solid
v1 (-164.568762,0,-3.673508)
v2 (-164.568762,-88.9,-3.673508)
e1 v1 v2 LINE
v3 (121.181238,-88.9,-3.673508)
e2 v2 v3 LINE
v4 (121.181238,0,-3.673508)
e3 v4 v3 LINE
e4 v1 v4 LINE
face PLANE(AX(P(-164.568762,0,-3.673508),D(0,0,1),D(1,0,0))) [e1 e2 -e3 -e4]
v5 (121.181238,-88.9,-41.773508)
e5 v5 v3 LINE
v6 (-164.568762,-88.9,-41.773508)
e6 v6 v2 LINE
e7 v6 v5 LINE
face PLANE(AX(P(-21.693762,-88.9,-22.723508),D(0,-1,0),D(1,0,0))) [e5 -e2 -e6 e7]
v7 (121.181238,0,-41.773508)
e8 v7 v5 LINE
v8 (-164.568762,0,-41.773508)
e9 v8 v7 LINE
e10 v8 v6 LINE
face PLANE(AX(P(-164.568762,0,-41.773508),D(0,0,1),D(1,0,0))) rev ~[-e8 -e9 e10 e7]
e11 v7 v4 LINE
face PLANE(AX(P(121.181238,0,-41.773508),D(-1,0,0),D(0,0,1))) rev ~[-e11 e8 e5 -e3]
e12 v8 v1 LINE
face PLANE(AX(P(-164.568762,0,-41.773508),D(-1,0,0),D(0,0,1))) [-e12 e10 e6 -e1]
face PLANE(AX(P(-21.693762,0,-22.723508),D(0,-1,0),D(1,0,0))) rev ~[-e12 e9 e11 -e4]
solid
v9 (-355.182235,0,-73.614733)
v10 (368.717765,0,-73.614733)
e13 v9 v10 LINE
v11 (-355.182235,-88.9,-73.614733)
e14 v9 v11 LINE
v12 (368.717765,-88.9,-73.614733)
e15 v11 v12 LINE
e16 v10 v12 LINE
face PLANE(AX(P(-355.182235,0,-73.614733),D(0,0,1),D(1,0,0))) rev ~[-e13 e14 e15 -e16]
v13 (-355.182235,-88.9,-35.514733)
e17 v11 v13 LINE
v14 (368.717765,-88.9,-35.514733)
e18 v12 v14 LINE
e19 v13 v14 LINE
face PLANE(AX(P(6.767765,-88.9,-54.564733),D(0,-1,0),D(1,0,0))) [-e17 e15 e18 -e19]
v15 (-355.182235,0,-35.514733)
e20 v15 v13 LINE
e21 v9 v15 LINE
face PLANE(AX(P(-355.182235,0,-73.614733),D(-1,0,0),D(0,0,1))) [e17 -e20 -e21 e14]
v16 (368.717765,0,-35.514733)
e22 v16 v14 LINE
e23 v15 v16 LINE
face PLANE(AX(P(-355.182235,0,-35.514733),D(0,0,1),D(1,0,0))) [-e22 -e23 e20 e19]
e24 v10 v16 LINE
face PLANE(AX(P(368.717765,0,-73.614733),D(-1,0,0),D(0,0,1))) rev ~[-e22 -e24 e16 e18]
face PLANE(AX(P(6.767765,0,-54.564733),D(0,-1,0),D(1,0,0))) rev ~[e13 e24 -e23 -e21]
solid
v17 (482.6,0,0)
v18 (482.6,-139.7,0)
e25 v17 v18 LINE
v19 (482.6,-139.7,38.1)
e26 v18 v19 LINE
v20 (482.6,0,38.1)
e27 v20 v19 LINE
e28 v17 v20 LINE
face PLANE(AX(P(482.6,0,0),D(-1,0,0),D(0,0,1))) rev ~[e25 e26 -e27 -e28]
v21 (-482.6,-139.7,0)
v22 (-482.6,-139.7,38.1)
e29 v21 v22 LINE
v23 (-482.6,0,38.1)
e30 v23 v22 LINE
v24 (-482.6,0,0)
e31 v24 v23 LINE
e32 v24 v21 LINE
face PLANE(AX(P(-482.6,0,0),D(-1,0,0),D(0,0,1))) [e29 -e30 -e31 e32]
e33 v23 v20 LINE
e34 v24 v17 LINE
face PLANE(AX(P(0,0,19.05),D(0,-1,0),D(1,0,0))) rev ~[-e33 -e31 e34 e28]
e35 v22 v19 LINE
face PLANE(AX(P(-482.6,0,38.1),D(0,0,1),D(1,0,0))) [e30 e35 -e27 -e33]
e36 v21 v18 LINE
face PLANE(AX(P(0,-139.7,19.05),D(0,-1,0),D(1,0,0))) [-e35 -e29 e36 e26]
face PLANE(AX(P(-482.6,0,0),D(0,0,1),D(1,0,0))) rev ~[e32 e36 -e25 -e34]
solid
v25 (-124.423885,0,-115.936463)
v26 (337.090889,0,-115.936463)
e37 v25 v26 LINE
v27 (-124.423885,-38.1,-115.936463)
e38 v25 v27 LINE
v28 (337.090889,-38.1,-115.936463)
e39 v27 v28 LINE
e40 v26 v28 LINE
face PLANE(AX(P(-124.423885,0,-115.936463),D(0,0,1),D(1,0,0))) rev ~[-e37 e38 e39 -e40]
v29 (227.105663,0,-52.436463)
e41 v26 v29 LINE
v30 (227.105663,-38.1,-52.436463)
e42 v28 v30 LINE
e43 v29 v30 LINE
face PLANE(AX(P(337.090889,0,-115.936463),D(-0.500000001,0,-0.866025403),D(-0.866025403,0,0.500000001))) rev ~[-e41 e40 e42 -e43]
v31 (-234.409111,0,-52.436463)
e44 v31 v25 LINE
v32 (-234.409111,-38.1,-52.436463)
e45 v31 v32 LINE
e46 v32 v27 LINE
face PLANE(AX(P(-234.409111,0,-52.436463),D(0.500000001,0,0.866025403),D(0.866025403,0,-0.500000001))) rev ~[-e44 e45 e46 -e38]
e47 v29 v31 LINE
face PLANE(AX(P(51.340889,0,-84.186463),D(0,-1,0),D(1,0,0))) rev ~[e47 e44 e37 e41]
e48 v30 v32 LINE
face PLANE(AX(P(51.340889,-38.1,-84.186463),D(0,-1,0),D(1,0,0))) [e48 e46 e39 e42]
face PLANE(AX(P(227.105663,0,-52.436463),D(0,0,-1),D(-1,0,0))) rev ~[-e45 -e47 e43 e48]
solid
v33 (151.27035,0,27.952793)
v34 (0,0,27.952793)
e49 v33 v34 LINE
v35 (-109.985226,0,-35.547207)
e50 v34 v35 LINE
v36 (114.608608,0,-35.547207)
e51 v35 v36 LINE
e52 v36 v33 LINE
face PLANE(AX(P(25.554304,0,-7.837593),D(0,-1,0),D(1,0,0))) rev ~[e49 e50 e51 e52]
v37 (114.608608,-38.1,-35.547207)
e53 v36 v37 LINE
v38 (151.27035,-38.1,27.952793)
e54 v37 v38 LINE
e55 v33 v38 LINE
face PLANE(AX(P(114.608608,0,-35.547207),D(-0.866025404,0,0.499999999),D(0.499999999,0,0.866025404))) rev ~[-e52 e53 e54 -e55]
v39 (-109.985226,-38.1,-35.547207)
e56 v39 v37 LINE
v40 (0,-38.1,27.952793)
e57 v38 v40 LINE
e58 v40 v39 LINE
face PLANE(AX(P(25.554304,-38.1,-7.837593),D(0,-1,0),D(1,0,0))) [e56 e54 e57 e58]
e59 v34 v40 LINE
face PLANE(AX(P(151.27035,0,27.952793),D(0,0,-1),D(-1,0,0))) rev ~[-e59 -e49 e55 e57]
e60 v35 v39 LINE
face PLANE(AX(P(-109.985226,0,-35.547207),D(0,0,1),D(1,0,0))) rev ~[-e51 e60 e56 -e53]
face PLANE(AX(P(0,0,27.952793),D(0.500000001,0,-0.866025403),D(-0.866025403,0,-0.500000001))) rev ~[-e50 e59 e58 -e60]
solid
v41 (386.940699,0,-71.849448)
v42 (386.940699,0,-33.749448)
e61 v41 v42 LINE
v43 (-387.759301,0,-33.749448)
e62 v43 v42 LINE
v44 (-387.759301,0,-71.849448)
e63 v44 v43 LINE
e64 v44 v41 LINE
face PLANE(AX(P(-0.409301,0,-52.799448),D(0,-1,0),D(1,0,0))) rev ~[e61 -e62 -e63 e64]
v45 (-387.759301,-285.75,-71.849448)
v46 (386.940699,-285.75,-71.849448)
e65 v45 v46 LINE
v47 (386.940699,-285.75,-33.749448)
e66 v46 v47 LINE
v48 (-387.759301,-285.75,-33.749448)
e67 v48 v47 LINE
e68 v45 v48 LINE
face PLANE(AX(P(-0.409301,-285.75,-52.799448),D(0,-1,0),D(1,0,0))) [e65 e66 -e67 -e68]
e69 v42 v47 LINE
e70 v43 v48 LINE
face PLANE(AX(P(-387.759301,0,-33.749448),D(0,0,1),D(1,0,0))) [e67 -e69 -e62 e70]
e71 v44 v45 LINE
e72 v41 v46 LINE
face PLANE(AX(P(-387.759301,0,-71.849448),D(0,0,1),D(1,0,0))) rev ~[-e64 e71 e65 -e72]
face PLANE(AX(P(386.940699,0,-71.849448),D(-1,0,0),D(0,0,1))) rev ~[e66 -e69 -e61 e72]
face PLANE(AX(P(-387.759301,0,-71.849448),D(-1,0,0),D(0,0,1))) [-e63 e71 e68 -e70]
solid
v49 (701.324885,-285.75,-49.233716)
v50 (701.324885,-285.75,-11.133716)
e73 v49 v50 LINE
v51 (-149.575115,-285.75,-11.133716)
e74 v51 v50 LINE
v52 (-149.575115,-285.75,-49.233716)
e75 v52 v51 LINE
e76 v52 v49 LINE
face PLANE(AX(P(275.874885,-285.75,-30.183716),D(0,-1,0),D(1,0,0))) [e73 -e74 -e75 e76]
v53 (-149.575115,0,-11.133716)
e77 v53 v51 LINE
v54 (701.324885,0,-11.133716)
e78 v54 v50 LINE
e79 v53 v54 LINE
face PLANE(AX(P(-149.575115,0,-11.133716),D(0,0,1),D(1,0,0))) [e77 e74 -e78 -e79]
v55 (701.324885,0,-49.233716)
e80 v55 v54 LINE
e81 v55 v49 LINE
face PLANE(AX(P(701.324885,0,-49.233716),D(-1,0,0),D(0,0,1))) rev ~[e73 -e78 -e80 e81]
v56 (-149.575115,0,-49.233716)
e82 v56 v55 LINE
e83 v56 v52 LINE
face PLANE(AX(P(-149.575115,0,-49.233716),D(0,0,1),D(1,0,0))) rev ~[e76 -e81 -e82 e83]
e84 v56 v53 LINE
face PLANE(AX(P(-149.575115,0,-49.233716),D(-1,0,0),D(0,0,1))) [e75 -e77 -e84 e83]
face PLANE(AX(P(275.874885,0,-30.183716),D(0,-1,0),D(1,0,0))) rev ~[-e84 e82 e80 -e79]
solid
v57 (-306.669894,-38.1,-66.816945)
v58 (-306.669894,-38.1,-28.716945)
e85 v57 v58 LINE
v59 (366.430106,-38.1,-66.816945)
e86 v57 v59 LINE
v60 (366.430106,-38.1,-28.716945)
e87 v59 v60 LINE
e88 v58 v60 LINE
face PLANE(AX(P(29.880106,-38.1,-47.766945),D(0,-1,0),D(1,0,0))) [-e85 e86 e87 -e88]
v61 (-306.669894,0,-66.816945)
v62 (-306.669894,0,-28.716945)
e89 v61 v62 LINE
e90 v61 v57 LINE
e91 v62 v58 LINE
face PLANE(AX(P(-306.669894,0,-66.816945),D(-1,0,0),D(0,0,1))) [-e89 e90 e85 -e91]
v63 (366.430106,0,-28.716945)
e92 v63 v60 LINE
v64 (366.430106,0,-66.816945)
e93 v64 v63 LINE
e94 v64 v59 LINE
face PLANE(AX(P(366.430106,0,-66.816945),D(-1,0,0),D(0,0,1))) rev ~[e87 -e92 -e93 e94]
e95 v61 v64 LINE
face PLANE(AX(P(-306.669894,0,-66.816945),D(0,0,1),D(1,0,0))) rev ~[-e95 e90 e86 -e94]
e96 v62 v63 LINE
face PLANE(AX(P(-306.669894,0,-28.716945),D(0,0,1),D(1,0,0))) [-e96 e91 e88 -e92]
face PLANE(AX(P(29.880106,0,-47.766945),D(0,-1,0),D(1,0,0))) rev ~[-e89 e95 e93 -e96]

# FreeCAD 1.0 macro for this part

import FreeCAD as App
import Part
import Sketcher
Q = App.Units.Quantity

doc = App.newDocument("Part")
body = doc.addObject("PartDesign::Body", "Body")

# Sketch on XZ plane
sketch1 = body.newObject("Sketcher::SketchObject", "Sketch")
sketch1.AttachmentSupport = (doc.getObject("XZ_Plane"), [""])
sketch1.MapMode = "FlatFace"
sketch1.addGeometry(Part.LineSegment(App.Vector(-482.6, 38.1, 0), App.Vector(-482.6, 0, 0)), False)
sketch1.addGeometry(Part.LineSegment(App.Vector(-482.6, 0, 0), App.Vector(482.6, 0, 0)), False)
sketch1.addGeometry(Part.LineSegment(App.Vector(482.6, 0, 0), App.Vector(482.6, 38.1, 0)), False)
sketch1.addGeometry(Part.LineSegment(App.Vector(482.6, 38.1, 0), App.Vector(-482.6, 38.1, 0)), False)
sketch1.addConstraint(Sketcher.Constraint("Coincident", 0, 2, 1, 1))
sketch1.addConstraint(Sketcher.Constraint("Coincident", 1, 2, 2, 1))
sketch1.addConstraint(Sketcher.Constraint("Coincident", 2, 2, 3, 1))
sketch1.addConstraint(Sketcher.Constraint("Coincident", 3, 2, 0, 1))
sketch1.addConstraint(Sketcher.Constraint("Vertical", 0))
sketch1.addConstraint(Sketcher.Constraint("Horizontal", 1))
sketch1.addConstraint(Sketcher.Constraint("Vertical", 2))
sketch1.addConstraint(Sketcher.Constraint("Horizontal", 3))
sketch1.addConstraint(Sketcher.Constraint("Symmetric", 0, 2, 1, 2, -1, 1))
sketch1.addConstraint(Sketcher.Constraint("DistanceX", 1, 1, 1, 2, Q("38 in")))
sketch1.addConstraint(Sketcher.Constraint("DistanceY", 0, 2, 0, 1, Q("1.5 in")))
pad1 = body.newObject("PartDesign::Pad", "Pad")
pad1.Profile = sketch1
pad1.Length = Q("5.5 in")
body2 = doc.addObject("PartDesign::Body", "Body001")
doc.recompute()

body2.BaseFeature = body
doc.recompute()
body3 = doc.addObject("PartDesign::Body", "Body002")
doc.recompute()

body3.BaseFeature = body
doc.recompute()
body4 = doc.addObject("PartDesign::Body", "Body003")

# Sketch on XZ plane
sketch2 = body4.newObject("Sketcher::SketchObject", "Sketch001")
sketch2.AttachmentSupport = (doc.getObject("XZ_Plane003"), [""])
sketch2.MapMode = "FlatFace"
sketch2.addGeometry(Part.LineSegment(App.Vector(-355.182235, -35.514733, 0), App.Vector(-355.182235, -73.614733, 0)), False)
sketch2.addGeometry(Part.LineSegment(App.Vector(-355.182235, -73.614733, 0), App.Vector(368.717765, -73.614733, 0)), False)
sketch2.addGeometry(Part.LineSegment(App.Vector(368.717765, -73.614733, 0), App.Vector(368.717765, -35.514733, 0)), False)
sketch2.addGeometry(Part.LineSegment(App.Vector(368.717765, -35.514733, 0), App.Vector(-355.182235, -35.514733, 0)), False)
sketch2.addConstraint(Sketcher.Constraint("Coincident", 0, 2, 1, 1))
sketch2.addConstraint(Sketcher.Constraint("Coincident", 1, 2, 2, 1))
sketch2.addConstraint(Sketcher.Constraint("Coincident", 2, 2, 3, 1))
sketch2.addConstraint(Sketcher.Constraint("Coincident", 3, 2, 0, 1))
sketch2.addConstraint(Sketcher.Constraint("Vertical", 0))
sketch2.addConstraint(Sketcher.Constraint("Horizontal", 1))
sketch2.addConstraint(Sketcher.Constraint("Vertical", 2))
sketch2.addConstraint(Sketcher.Constraint("Horizontal", 3))
sketch2.addConstraint(Sketcher.Constraint("DistanceX", 1, 1, 1, 2, Q("28.5 in")))
sketch2.addConstraint(Sketcher.Constraint("DistanceY", 0, 2, 0, 1, Q("1.5 in")))
sketch2.addConstraint(Sketcher.Constraint("DistanceX", 0, 2, -1, 1, 355.182235))
sketch2.addConstraint(Sketcher.Constraint("DistanceY", 0, 2, -1, 1, 73.614733))
pad2 = body4.newObject("PartDesign::Pad", "Pad001")
pad2.Profile = sketch2
pad2.Length = Q("3.5 in")
body5 = doc.addObject("PartDesign::Body", "Body004")

# Sketch on XZ plane
sketch3 = body5.newObject("Sketcher::SketchObject", "Sketch002")
sketch3.AttachmentSupport = (doc.getObject("XZ_Plane004"), [""])
sketch3.MapMode = "FlatFace"
sketch3.addGeometry(Part.LineSegment(App.Vector(-149.575115, -11.133716, 0), App.Vector(-149.575115, -49.233716, 0)), False)
sketch3.addGeometry(Part.LineSegment(App.Vector(-149.575115, -49.233716, 0), App.Vector(701.324885, -49.233716, 0)), False)
sketch3.addGeometry(Part.LineSegment(App.Vector(701.324885, -49.233716, 0), App.Vector(701.324885, -11.133716, 0)), False)
sketch3.addGeometry(Part.LineSegment(App.Vector(701.324885, -11.133716, 0), App.Vector(-149.575115, -11.133716, 0)), False)
sketch3.addConstraint(Sketcher.Constraint("Coincident", 0, 2, 1, 1))
sketch3.addConstraint(Sketcher.Constraint("Coincident", 1, 2, 2, 1))
sketch3.addConstraint(Sketcher.Constraint("Coincident", 2, 2, 3, 1))
sketch3.addConstraint(Sketcher.Constraint("Coincident", 3, 2, 0, 1))
sketch3.addConstraint(Sketcher.Constraint("Vertical", 0))
sketch3.addConstraint(Sketcher.Constraint("Horizontal", 1))
sketch3.addConstraint(Sketcher.Constraint("Vertical", 2))
sketch3.addConstraint(Sketcher.Constraint("Horizontal", 3))
sketch3.addConstraint(Sketcher.Constraint("DistanceX", 1, 1, 1, 2, Q("33.5 in")))
sketch3.addConstraint(Sketcher.Constraint("DistanceY", 0, 2, 0, 1, Q("1.5 in")))
sketch3.addConstraint(Sketcher.Constraint("DistanceX", 0, 2, -1, 1, 149.575115))
sketch3.addConstraint(Sketcher.Constraint("DistanceY", 0, 2, -1, 1, 49.233716))
pad3 = body5.newObject("PartDesign::Pad", "Pad002")
pad3.Profile = sketch3
pad3.Length = Q("11.25 in")
body6 = doc.addObject("PartDesign::Body", "Body005")

# Sketch on XZ plane
sketch4 = body6.newObject("Sketcher::SketchObject", "Sketch003")
sketch4.AttachmentSupport = (doc.getObject("XZ_Plane005"), [""])
sketch4.MapMode = "FlatFace"
sketch4.addGeometry(Part.LineSegment(App.Vector(-387.759301, -33.749448, 0), App.Vector(-387.759301, -71.849448, 0)), False)
sketch4.addGeometry(Part.LineSegment(App.Vector(-387.759301, -71.849448, 0), App.Vector(386.940699, -71.849448, 0)), False)
sketch4.addGeometry(Part.LineSegment(App.Vector(386.940699, -71.849448, 0), App.Vector(386.940699, -33.749448, 0)), False)
sketch4.addGeometry(Part.LineSegment(App.Vector(386.940699, -33.749448, 0), App.Vector(-387.759301, -33.749448, 0)), False)
sketch4.addConstraint(Sketcher.Constraint("Coincident", 0, 2, 1, 1))
sketch4.addConstraint(Sketcher.Constraint("Coincident", 1, 2, 2, 1))
sketch4.addConstraint(Sketcher.Constraint("Coincident", 2, 2, 3, 1))
sketch4.addConstraint(Sketcher.Constraint("Coincident", 3, 2, 0, 1))
sketch4.addConstraint(Sketcher.Constraint("Vertical", 0))
sketch4.addConstraint(Sketcher.Constraint("Horizontal", 1))
sketch4.addConstraint(Sketcher.Constraint("Vertical", 2))
sketch4.addConstraint(Sketcher.Constraint("Horizontal", 3))
sketch4.addConstraint(Sketcher.Constraint("DistanceX", 1, 1, 1, 2, Q("30.5 in")))
sketch4.addConstraint(Sketcher.Constraint("DistanceY", 0, 2, 0, 1, Q("1.5 in")))
sketch4.addConstraint(Sketcher.Constraint("DistanceX", 0, 2, -1, 1, 387.759301))
sketch4.addConstraint(Sketcher.Constraint("DistanceY", 0, 2, -1, 1, 71.849448))
pad4 = body6.newObject("PartDesign::Pad", "Pad003")
pad4.Profile = sketch4
pad4.Length = Q("11.25 in")
body7 = doc.addObject("PartDesign::Body", "Body006")

# Sketch on XZ plane
sketch5 = body7.newObject("Sketcher::SketchObject", "Sketch004")
sketch5.AttachmentSupport = (doc.getObject("XZ_Plane006"), [""])
sketch5.MapMode = "FlatFace"
sketch5.addGeometry(Part.LineSegment(App.Vector(-164.568762, -3.673508, 0), App.Vector(-164.568762, -41.773508, 0)), False)
sketch5.addGeometry(Part.LineSegment(App.Vector(-164.568762, -41.773508, 0), App.Vector(121.181238, -41.773508, 0)), False)
sketch5.addGeometry(Part.LineSegment(App.Vector(121.181238, -41.773508, 0), App.Vector(121.181238, -3.673508, 0)), False)
sketch5.addGeometry(Part.LineSegment(App.Vector(121.181238, -3.673508, 0), App.Vector(-164.568762, -3.673508, 0)), False)
sketch5.addConstraint(Sketcher.Constraint("Coincident", 0, 2, 1, 1))
sketch5.addConstraint(Sketcher.Constraint("Coincident", 1, 2, 2, 1))
sketch5.addConstraint(Sketcher.Constraint("Coincident", 2, 2, 3, 1))
sketch5.addConstraint(Sketcher.Constraint("Coincident", 3, 2, 0, 1))
sketch5.addConstraint(Sketcher.Constraint("Vertical", 0))
sketch5.addConstraint(Sketcher.Constraint("Horizontal", 1))
sketch5.addConstraint(Sketcher.Constraint("Vertical", 2))
sketch5.addConstraint(Sketcher.Constraint("Horizontal", 3))
sketch5.addConstraint(Sketcher.Constraint("DistanceY", 0, 2, 0, 1, Q("1.5 in")))
sketch5.addConstraint(Sketcher.Constraint("DistanceX", 1, 1, 1, 2, Q("11.25 in")))
sketch5.addConstraint(Sketcher.Constraint("DistanceX", 0, 2, -1, 1, 164.568762))
sketch5.addConstraint(Sketcher.Constraint("DistanceY", 2, 2, -1, 1, 3.673508))
pad5 = body7.newObject("PartDesign::Pad", "Pad004")
pad5.Profile = sketch5
pad5.Length = Q("3.5 in")
body8 = doc.addObject("PartDesign::Body", "Body007")

# Sketch on XZ plane
sketch6 = body8.newObject("Sketcher::SketchObject", "Sketch005")
sketch6.AttachmentSupport = (doc.getObject("XZ_Plane007"), [""])
sketch6.MapMode = "FlatFace"
sketch6.addGeometry(Part.LineSegment(App.Vector(-306.669894, -28.716945, 0), App.Vector(-306.669894, -66.816945, 0)), False)
sketch6.addGeometry(Part.LineSegment(App.Vector(-306.669894, -66.816945, 0), App.Vector(366.430106, -66.816945, 0)), False)
sketch6.addGeometry(Part.LineSegment(App.Vector(366.430106, -66.816945, 0), App.Vector(366.430106, -28.716945, 0)), False)
sketch6.addGeometry(Part.LineSegment(App.Vector(366.430106, -28.716945, 0), App.Vector(-306.669894, -28.716945, 0)), False)
sketch6.addConstraint(Sketcher.Constraint("Coincident", 0, 2, 1, 1))
sketch6.addConstraint(Sketcher.Constraint("Coincident", 1, 2, 2, 1))
sketch6.addConstraint(Sketcher.Constraint("Coincident", 2, 2, 3, 1))
sketch6.addConstraint(Sketcher.Constraint("Coincident", 3, 2, 0, 1))
sketch6.addConstraint(Sketcher.Constraint("Vertical", 0))
sketch6.addConstraint(Sketcher.Constraint("Horizontal", 1))
sketch6.addConstraint(Sketcher.Constraint("Vertical", 2))
sketch6.addConstraint(Sketcher.Constraint("Horizontal", 3))
sketch6.addConstraint(Sketcher.Constraint("DistanceX", 1, 1, 1, 2, Q("26.5 in")))
sketch6.addConstraint(Sketcher.Constraint("DistanceY", 0, 2, 0, 1, Q("1.5 in")))
sketch6.addConstraint(Sketcher.Constraint("DistanceX", 0, 2, -1, 1, 306.669894))
sketch6.addConstraint(Sketcher.Constraint("DistanceY", 0, 2, -1, 1, 66.816945))
pad6 = body8.newObject("PartDesign::Pad", "Pad005")
pad6.Profile = sketch6
pad6.Length = Q("1.5 in")
body9 = doc.addObject("PartDesign::Body", "Body008")

# Sketch on XZ plane
sketch7 = body9.newObject("Sketcher::SketchObject", "Sketch006")
sketch7.AttachmentSupport = (doc.getObject("XZ_Plane008"), [""])
sketch7.MapMode = "FlatFace"
sketch7.addGeometry(Part.LineSegment(App.Vector(0, 27.952793, 0), App.Vector(-109.985226, -35.547207, 0)), False)
sketch7.addGeometry(Part.LineSegment(App.Vector(-109.985226, -35.547207, 0), App.Vector(114.608608, -35.547207, 0)), False)
sketch7.addGeometry(Part.LineSegment(App.Vector(114.608608, -35.547207, 0), App.Vector(151.27035, 27.952793, 0)), False)
sketch7.addGeometry(Part.LineSegment(App.Vector(151.27035, 27.952793, 0), App.Vector(0, 27.952793, 0)), False)
sketch7.addConstraint(Sketcher.Constraint("Coincident", 0, 2, 1, 1))
sketch7.addConstraint(Sketcher.Constraint("Coincident", 1, 2, 2, 1))
sketch7.addConstraint(Sketcher.Constraint("Coincident", 2, 2, 3, 1))
sketch7.addConstraint(Sketcher.Constraint("Coincident", 3, 2, 0, 1))
sketch7.addConstraint(Sketcher.Constraint("Horizontal", 1))
sketch7.addConstraint(Sketcher.Constraint("Horizontal", 3))
sketch7.addConstraint(Sketcher.Constraint("PointOnObject", 3, 2, -2))
sketch7.addConstraint(Sketcher.Constraint("Distance", 0, Q("5 in")))
sketch7.addConstraint(Sketcher.Constraint("Angle", 0, Q("-150 deg")))
sketch7.addConstraint(Sketcher.Constraint("Angle", 2, Q("60 deg")))
sketch7.addConstraint(Sketcher.Constraint("DistanceX", 3, 2, 3, 1, 151.27035))
sketch7.addConstraint(Sketcher.Constraint("DistanceY", 0, 2, -1, 1, 35.547207))
pad7 = body9.newObject("PartDesign::Pad", "Pad006")
pad7.Profile = sketch7
pad7.Length = Q("1.5 in")
body10 = doc.addObject("PartDesign::Body", "Body009")

# Sketch on XZ plane
sketch8 = body10.newObject("Sketcher::SketchObject", "Sketch007")
sketch8.AttachmentSupport = (doc.getObject("XZ_Plane009"), [""])
sketch8.MapMode = "FlatFace"
sketch8.addGeometry(Part.LineSegment(App.Vector(-124.423885, -115.936463, 0), App.Vector(337.090889, -115.936463, 0)), False)
sketch8.addGeometry(Part.LineSegment(App.Vector(337.090889, -115.936463, 0), App.Vector(227.105663, -52.436463, 0)), False)
sketch8.addGeometry(Part.LineSegment(App.Vector(227.105663, -52.436463, 0), App.Vector(-234.409111, -52.436463, 0)), False)
sketch8.addGeometry(Part.LineSegment(App.Vector(-234.409111, -52.436463, 0), App.Vector(-124.423885, -115.936463, 0)), False)
sketch8.addConstraint(Sketcher.Constraint("Coincident", 0, 2, 1, 1))
sketch8.addConstraint(Sketcher.Constraint("Coincident", 1, 2, 2, 1))
sketch8.addConstraint(Sketcher.Constraint("Coincident", 2, 2, 3, 1))
sketch8.addConstraint(Sketcher.Constraint("Coincident", 3, 2, 0, 1))
sketch8.addConstraint(Sketcher.Constraint("Horizontal", 0))
sketch8.addConstraint(Sketcher.Constraint("Horizontal", 2))
sketch8.addConstraint(Sketcher.Constraint("Parallel", 1, 3))
sketch8.addConstraint(Sketcher.Constraint("Distance", 1, Q("5 in")))
sketch8.addConstraint(Sketcher.Constraint("Angle", 1, Q("150 deg")))
sketch8.addConstraint(Sketcher.Constraint("DistanceX", 2, 2, 0, 2, Q("22.5 in")))
sketch8.addConstraint(Sketcher.Constraint("DistanceX", -1, 1, 0, 2, 337.090889))
sketch8.addConstraint(Sketcher.Constraint("DistanceY", 0, 2, -1, 1, 115.936463))
pad8 = body10.newObject("PartDesign::Pad", "Pad007")
pad8.Profile = sketch8
pad8.Length = Q("1.5 in")
body.Visibility = False
body2.Visibility = False

doc.recompute()
